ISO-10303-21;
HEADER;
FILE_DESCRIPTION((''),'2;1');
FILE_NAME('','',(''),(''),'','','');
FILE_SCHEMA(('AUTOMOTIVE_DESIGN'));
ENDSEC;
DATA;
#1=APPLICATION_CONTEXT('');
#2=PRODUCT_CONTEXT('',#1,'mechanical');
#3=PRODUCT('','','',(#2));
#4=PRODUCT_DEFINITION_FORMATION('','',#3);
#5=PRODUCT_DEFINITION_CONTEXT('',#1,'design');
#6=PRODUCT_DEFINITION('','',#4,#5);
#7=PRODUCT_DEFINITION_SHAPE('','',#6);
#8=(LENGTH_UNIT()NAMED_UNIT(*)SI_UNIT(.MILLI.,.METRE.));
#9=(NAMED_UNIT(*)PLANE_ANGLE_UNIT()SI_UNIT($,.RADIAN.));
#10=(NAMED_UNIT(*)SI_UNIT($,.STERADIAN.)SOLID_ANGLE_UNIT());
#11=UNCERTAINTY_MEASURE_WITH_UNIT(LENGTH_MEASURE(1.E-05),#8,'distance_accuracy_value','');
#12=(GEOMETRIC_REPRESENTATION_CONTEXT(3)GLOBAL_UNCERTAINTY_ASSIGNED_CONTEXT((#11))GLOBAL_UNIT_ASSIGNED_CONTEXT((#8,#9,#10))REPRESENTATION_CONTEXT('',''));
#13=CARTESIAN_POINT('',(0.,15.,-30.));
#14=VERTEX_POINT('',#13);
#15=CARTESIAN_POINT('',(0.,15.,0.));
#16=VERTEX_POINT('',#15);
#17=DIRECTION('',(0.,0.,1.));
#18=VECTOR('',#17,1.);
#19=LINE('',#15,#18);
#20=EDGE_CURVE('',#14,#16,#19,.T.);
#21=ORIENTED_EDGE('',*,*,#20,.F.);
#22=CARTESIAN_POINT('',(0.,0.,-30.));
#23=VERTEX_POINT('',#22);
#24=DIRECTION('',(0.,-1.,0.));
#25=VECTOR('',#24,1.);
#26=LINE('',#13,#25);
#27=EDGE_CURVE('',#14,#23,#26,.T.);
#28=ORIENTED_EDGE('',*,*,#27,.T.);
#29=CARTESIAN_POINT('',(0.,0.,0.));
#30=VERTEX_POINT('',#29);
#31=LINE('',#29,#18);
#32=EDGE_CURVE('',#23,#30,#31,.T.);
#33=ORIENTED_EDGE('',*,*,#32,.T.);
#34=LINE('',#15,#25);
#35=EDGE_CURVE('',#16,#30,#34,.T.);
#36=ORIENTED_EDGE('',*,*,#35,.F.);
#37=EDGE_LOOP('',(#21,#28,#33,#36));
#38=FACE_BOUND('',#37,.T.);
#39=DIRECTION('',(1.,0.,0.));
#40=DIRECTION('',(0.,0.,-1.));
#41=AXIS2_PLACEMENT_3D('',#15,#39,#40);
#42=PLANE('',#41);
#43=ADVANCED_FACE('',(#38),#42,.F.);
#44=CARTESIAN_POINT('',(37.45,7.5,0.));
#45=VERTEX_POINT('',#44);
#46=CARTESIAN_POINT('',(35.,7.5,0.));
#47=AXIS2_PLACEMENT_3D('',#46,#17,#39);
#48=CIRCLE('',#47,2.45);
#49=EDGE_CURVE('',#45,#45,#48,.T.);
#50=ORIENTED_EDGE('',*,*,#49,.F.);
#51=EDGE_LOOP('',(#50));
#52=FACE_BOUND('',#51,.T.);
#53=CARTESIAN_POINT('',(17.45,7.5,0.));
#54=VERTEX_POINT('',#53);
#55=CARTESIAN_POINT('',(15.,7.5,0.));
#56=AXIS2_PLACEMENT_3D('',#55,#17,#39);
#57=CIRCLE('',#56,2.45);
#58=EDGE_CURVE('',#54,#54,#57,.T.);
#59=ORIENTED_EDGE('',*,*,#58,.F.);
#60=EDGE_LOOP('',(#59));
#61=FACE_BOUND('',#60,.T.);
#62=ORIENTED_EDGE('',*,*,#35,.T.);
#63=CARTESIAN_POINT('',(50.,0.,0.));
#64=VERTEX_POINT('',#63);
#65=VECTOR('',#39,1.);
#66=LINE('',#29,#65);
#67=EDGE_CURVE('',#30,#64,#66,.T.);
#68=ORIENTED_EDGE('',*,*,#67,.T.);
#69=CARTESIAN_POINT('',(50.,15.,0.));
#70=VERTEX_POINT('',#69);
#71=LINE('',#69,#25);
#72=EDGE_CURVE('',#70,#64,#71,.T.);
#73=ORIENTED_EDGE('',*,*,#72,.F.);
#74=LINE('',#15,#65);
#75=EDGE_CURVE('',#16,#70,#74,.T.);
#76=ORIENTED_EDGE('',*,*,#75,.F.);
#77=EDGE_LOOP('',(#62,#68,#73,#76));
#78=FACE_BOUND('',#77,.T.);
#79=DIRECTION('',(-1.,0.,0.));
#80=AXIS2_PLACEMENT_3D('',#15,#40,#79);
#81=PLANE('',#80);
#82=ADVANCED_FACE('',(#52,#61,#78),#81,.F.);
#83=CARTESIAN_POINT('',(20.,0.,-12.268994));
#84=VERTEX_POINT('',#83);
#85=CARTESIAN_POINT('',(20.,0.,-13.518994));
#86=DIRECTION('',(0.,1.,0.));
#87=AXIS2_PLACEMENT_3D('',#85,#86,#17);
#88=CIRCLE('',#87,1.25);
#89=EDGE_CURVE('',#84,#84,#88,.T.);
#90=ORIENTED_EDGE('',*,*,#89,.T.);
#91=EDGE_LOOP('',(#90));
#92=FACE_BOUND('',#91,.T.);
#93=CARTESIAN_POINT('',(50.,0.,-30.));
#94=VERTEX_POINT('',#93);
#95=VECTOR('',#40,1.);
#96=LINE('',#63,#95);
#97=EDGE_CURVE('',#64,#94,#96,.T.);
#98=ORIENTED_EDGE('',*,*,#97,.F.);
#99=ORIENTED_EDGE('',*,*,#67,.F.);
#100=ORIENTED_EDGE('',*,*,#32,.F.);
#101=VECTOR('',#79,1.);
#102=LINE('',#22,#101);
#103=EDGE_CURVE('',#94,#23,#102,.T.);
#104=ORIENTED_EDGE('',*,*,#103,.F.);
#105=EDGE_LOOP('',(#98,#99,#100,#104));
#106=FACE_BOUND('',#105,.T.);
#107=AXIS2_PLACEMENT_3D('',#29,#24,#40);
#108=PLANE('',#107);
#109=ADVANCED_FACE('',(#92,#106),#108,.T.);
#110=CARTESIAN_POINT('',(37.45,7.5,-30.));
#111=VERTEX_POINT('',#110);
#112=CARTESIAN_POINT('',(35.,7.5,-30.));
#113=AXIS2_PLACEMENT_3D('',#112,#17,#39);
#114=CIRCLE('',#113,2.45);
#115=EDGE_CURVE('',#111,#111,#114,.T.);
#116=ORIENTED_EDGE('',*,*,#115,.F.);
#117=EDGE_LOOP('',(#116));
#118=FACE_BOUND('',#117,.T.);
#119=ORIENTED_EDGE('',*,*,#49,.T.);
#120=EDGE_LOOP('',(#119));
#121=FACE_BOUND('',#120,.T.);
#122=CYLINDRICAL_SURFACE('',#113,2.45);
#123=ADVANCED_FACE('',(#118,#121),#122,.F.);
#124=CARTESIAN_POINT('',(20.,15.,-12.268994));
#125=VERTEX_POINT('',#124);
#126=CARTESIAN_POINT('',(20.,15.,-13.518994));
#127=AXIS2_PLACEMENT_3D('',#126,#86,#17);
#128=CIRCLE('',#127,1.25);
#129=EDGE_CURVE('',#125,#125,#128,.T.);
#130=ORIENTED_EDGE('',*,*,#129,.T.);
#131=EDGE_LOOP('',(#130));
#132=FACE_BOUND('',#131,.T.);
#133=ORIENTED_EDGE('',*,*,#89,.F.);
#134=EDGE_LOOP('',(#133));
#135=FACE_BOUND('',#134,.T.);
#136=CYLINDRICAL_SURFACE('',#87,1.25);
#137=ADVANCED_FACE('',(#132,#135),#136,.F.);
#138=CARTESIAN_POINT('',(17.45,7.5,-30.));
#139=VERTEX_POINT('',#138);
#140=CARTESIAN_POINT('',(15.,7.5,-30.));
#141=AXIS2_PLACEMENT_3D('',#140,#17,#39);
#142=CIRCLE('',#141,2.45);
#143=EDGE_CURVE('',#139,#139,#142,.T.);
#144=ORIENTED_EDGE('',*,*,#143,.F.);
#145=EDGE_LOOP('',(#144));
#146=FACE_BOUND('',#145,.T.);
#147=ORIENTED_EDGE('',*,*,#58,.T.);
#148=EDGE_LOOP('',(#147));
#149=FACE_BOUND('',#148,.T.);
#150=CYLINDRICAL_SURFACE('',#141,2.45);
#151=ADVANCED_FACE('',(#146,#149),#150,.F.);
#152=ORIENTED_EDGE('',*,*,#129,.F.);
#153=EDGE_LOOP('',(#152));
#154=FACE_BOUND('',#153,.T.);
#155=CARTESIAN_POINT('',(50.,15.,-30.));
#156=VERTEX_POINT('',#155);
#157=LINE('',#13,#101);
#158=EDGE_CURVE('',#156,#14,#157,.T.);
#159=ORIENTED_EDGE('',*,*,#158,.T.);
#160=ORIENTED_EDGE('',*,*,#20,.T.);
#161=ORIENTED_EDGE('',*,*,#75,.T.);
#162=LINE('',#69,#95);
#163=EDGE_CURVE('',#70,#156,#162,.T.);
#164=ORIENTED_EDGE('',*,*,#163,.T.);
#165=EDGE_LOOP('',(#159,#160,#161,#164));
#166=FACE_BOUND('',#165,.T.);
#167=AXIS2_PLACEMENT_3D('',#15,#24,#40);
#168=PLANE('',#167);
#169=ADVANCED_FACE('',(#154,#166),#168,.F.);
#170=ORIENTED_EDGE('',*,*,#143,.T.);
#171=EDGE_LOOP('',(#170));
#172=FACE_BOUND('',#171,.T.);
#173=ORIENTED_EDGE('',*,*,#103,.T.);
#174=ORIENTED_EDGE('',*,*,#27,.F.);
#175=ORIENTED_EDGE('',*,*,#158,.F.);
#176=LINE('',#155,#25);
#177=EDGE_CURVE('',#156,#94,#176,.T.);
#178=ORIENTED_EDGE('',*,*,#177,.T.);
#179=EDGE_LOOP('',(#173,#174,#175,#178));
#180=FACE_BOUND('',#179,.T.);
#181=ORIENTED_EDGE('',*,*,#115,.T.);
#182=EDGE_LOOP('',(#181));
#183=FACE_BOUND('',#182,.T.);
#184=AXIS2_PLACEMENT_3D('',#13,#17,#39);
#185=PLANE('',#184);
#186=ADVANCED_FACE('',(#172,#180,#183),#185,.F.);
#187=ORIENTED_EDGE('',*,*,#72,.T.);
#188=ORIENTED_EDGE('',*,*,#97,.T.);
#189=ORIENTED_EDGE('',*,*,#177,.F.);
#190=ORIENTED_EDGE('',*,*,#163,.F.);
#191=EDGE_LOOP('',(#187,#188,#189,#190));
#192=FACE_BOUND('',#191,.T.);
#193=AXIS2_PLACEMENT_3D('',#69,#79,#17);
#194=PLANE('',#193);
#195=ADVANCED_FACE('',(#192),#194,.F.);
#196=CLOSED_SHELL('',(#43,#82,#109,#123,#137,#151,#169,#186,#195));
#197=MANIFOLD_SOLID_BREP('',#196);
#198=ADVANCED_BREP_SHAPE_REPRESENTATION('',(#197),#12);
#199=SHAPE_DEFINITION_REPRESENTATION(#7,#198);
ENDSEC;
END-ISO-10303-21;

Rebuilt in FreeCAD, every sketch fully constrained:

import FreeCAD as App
import Part
import Sketcher

V = App.Vector

doc = App.newDocument("Part")
body = doc.addObject("PartDesign::Body", "Body")

sketch1 = body.newObject("Sketcher::SketchObject", "Sketch")
sketch1.AttachmentSupport = (doc.getObject("XZ_Plane"), [""])
sketch1.MapMode = "FlatFace"
sketch1.addGeometry([
    Part.LineSegment(V(0, -30, 0), V(0, 0, 0)),
    Part.LineSegment(V(0, 0, 0), V(50, 0, 0)),
    Part.LineSegment(V(50, 0, 0), V(50, -30, 0)),
    Part.LineSegment(V(50, -30, 0), V(0, -30, 0)),
], False)
sketch1.addConstraint([
    Sketcher.Constraint("Coincident", 0, 2, 1, 1),
    Sketcher.Constraint("Coincident", 1, 2, 2, 1),
    Sketcher.Constraint("Coincident", 2, 2, 3, 1),
    Sketcher.Constraint("Coincident", 3, 2, 0, 1),
    Sketcher.Constraint("Vertical", 0),
    Sketcher.Constraint("Horizontal", 1),
    Sketcher.Constraint("Vertical", 2),
    Sketcher.Constraint("Horizontal", 3),
    Sketcher.Constraint("Coincident", 0, 2, -1, 1),
    Sketcher.Constraint("DistanceX", 1, 1, 1, 2, 50.0),
    Sketcher.Constraint("DistanceY", 0, 1, 0, 2, 30.0),
])
pad1 = body.newObject("PartDesign::Pad", "Pad")
pad1.Profile = sketch1
pad1.Length = 15
pad1.Reversed = True

sketch2 = body.newObject("Sketcher::SketchObject", "Sketch001")
sketch2.AttachmentSupport = (doc.getObject("XY_Plane"), [""])
sketch2.MapMode = "FlatFace"
sketch2.addGeometry([
    Part.Circle(V(35, 7.5, 0), V(0, 0, 1), 2.45),
    Part.Circle(V(15, 7.5, 0), V(0, 0, 1), 2.45),
], False)
sketch2.addConstraint([
    Sketcher.Constraint("Equal", 0, 1),
    Sketcher.Constraint("Horizontal", 0, 3, 1, 3),
    Sketcher.Constraint("Diameter", 0, 4.9),
    Sketcher.Constraint("DistanceX", -1, 1, 0, 3, 35.0),
    Sketcher.Constraint("DistanceX", -1, 1, 1, 3, 15.0),
    Sketcher.Constraint("DistanceY", -1, 1, 0, 3, 7.5),
])
pocket1 = body.newObject("PartDesign::Pocket", "Pocket")
pocket1.Profile = sketch2
pocket1.Type = "ThroughAll"

sketch3 = body.newObject("Sketcher::SketchObject", "Sketch002")
sketch3.AttachmentSupport = (doc.getObject("XZ_Plane"), [""])
sketch3.MapMode = "FlatFace"
sketch3.AttachmentOffset = App.Placement(V(0, 0, -15), App.Rotation())
sketch3.addGeometry(Part.Circle(V(20, -13.518994, 0), V(0, 0, 1), 1.25), False)
sketch3.addConstraint([
    Sketcher.Constraint("Diameter", 0, 2.5),
    Sketcher.Constraint("DistanceX", -1, 1, 0, 3, 20.0),
    Sketcher.Constraint("DistanceY", 0, 3, -1, 1, 13.518994),
])
pocket2 = body.newObject("PartDesign::Pocket", "Pocket001")
pocket2.Profile = sketch3
pocket2.Type = "ThroughAll"
pocket2.Reversed = True

doc.recompute()
